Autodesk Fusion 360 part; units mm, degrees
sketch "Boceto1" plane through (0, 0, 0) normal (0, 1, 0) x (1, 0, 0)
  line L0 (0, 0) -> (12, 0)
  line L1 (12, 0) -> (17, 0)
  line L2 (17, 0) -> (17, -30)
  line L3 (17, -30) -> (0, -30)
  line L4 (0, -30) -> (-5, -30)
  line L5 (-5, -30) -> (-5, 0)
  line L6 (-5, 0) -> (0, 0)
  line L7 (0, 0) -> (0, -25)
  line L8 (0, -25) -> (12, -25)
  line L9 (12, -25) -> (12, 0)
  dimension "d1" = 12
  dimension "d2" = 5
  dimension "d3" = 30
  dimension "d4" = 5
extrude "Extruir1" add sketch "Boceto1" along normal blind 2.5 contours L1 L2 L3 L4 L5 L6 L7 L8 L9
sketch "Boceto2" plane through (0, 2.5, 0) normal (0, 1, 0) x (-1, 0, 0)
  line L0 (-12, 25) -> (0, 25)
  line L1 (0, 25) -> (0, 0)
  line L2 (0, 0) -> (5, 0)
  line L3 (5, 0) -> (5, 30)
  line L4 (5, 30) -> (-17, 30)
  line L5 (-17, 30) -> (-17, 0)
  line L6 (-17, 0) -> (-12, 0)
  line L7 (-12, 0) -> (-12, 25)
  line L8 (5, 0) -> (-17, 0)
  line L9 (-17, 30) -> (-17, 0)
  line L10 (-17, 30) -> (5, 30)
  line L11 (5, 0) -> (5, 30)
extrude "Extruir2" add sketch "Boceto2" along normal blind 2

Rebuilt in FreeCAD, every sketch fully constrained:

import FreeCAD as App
import Part
import Sketcher

V = App.Vector

doc = App.newDocument("Part")
body = doc.addObject("PartDesign::Body", "Body")

# Sketch on XZ plane
sketch1 = body.newObject("Sketcher::SketchObject", "Sketch")
sketch1.AttachmentSupport = (doc.getObject("XZ_Plane"), [""])
sketch1.MapMode = "FlatFace"
sketch1.addGeometry([
    Part.LineSegment(V(0, 25, 0), V(0, 0, 0)),  # 0
    Part.LineSegment(V(0, 0, 0), V(-5, 0, 0)),  # 1
    Part.LineSegment(V(-5, 0, 0), V(-5, 30, 0)),  # 2
    Part.LineSegment(V(-5, 30, 0), V(17, 30, 0)),  # 3
    Part.LineSegment(V(17, 30, 0), V(17, 0, 0)),  # 4
    Part.LineSegment(V(17, 0, 0), V(12, 0, 0)),  # 5
    Part.LineSegment(V(12, 0, 0), V(12, 25, 0)),  # 6
    Part.LineSegment(V(12, 25, 0), V(0, 25, 0)),  # 7
], False)
sketch1.addConstraint([
    Sketcher.Constraint("Coincident", 0, 2, 1, 1),
    Sketcher.Constraint("Coincident", 1, 2, 2, 1),
    Sketcher.Constraint("Coincident", 2, 2, 3, 1),
    Sketcher.Constraint("Coincident", 3, 2, 4, 1),
    Sketcher.Constraint("Coincident", 4, 2, 5, 1),
    Sketcher.Constraint("Coincident", 5, 2, 6, 1),
    Sketcher.Constraint("Coincident", 6, 2, 7, 1),
    Sketcher.Constraint("Coincident", 7, 2, 0, 1),
    Sketcher.Constraint("Vertical", 0),
    Sketcher.Constraint("Horizontal", 1),
    Sketcher.Constraint("Vertical", 2),
    Sketcher.Constraint("Horizontal", 3),
    Sketcher.Constraint("Vertical", 4),
    Sketcher.Constraint("Horizontal", 5),
    Sketcher.Constraint("Vertical", 6),
    Sketcher.Constraint("Horizontal", 7),
    Sketcher.Constraint("Coincident", 0, 2, -1, 1),
    Sketcher.Constraint("PointOnObject", 4, 2, -1),
    Sketcher.Constraint("Equal", 1, 5),
    Sketcher.Constraint("DistanceX", 1, 2, 1, 1, 5.0),
    Sketcher.Constraint("DistanceX", 7, 2, 7, 1, 12.0),
    Sketcher.Constraint("DistanceY", 2, 1, 2, 2, 30.0),
    Sketcher.Constraint("DistanceY", 6, 2, 3, 2, 5.0),
])
pad1 = body.newObject("PartDesign::Pad", "Pad")
pad1.Profile = sketch1
pad1.Length = 2.5
pad1.Reversed = True

# Sketch on XZ plane
sketch2 = body.newObject("Sketcher::SketchObject", "Sketch001")
sketch2.AttachmentSupport = (doc.getObject("XZ_Plane"), [""])
sketch2.MapMode = "FlatFace"
sketch2.AttachmentOffset = App.Placement(V(0, 0, -2.5), App.Rotation())
sketch2.addGeometry([
    Part.LineSegment(V(17, 0, 0), V(-5, 0, 0)),
    Part.LineSegment(V(-5, 0, 0), V(-5, 30, 0)),
    Part.LineSegment(V(-5, 30, 0), V(17, 30, 0)),
    Part.LineSegment(V(17, 30, 0), V(17, 0, 0)),
], False)
sketch2.addConstraint([
    Sketcher.Constraint("Coincident", 0, 2, 1, 1),
    Sketcher.Constraint("Coincident", 1, 2, 2, 1),
    Sketcher.Constraint("Coincident", 2, 2, 3, 1),
    Sketcher.Constraint("Coincident", 3, 2, 0, 1),
    Sketcher.Constraint("Horizontal", 0),
    Sketcher.Constraint("Vertical", 1),
    Sketcher.Constraint("Horizontal", 2),
    Sketcher.Constraint("Vertical", 3),
    Sketcher.Constraint("PointOnObject", 0, 2, -1),
    Sketcher.Constraint("DistanceX", 0, 2, 0, 1, 22.0),
    Sketcher.Constraint("DistanceY", 1, 1, 1, 2, 30.0),
    Sketcher.Constraint("DistanceX", 0, 2, -1, 1, 5.0),
])
pad2 = body.newObject("PartDesign::Pad", "Pad001")
pad2.Profile = sketch2
pad2.Length = 2
pad2.Reversed = True

doc.recompute()
